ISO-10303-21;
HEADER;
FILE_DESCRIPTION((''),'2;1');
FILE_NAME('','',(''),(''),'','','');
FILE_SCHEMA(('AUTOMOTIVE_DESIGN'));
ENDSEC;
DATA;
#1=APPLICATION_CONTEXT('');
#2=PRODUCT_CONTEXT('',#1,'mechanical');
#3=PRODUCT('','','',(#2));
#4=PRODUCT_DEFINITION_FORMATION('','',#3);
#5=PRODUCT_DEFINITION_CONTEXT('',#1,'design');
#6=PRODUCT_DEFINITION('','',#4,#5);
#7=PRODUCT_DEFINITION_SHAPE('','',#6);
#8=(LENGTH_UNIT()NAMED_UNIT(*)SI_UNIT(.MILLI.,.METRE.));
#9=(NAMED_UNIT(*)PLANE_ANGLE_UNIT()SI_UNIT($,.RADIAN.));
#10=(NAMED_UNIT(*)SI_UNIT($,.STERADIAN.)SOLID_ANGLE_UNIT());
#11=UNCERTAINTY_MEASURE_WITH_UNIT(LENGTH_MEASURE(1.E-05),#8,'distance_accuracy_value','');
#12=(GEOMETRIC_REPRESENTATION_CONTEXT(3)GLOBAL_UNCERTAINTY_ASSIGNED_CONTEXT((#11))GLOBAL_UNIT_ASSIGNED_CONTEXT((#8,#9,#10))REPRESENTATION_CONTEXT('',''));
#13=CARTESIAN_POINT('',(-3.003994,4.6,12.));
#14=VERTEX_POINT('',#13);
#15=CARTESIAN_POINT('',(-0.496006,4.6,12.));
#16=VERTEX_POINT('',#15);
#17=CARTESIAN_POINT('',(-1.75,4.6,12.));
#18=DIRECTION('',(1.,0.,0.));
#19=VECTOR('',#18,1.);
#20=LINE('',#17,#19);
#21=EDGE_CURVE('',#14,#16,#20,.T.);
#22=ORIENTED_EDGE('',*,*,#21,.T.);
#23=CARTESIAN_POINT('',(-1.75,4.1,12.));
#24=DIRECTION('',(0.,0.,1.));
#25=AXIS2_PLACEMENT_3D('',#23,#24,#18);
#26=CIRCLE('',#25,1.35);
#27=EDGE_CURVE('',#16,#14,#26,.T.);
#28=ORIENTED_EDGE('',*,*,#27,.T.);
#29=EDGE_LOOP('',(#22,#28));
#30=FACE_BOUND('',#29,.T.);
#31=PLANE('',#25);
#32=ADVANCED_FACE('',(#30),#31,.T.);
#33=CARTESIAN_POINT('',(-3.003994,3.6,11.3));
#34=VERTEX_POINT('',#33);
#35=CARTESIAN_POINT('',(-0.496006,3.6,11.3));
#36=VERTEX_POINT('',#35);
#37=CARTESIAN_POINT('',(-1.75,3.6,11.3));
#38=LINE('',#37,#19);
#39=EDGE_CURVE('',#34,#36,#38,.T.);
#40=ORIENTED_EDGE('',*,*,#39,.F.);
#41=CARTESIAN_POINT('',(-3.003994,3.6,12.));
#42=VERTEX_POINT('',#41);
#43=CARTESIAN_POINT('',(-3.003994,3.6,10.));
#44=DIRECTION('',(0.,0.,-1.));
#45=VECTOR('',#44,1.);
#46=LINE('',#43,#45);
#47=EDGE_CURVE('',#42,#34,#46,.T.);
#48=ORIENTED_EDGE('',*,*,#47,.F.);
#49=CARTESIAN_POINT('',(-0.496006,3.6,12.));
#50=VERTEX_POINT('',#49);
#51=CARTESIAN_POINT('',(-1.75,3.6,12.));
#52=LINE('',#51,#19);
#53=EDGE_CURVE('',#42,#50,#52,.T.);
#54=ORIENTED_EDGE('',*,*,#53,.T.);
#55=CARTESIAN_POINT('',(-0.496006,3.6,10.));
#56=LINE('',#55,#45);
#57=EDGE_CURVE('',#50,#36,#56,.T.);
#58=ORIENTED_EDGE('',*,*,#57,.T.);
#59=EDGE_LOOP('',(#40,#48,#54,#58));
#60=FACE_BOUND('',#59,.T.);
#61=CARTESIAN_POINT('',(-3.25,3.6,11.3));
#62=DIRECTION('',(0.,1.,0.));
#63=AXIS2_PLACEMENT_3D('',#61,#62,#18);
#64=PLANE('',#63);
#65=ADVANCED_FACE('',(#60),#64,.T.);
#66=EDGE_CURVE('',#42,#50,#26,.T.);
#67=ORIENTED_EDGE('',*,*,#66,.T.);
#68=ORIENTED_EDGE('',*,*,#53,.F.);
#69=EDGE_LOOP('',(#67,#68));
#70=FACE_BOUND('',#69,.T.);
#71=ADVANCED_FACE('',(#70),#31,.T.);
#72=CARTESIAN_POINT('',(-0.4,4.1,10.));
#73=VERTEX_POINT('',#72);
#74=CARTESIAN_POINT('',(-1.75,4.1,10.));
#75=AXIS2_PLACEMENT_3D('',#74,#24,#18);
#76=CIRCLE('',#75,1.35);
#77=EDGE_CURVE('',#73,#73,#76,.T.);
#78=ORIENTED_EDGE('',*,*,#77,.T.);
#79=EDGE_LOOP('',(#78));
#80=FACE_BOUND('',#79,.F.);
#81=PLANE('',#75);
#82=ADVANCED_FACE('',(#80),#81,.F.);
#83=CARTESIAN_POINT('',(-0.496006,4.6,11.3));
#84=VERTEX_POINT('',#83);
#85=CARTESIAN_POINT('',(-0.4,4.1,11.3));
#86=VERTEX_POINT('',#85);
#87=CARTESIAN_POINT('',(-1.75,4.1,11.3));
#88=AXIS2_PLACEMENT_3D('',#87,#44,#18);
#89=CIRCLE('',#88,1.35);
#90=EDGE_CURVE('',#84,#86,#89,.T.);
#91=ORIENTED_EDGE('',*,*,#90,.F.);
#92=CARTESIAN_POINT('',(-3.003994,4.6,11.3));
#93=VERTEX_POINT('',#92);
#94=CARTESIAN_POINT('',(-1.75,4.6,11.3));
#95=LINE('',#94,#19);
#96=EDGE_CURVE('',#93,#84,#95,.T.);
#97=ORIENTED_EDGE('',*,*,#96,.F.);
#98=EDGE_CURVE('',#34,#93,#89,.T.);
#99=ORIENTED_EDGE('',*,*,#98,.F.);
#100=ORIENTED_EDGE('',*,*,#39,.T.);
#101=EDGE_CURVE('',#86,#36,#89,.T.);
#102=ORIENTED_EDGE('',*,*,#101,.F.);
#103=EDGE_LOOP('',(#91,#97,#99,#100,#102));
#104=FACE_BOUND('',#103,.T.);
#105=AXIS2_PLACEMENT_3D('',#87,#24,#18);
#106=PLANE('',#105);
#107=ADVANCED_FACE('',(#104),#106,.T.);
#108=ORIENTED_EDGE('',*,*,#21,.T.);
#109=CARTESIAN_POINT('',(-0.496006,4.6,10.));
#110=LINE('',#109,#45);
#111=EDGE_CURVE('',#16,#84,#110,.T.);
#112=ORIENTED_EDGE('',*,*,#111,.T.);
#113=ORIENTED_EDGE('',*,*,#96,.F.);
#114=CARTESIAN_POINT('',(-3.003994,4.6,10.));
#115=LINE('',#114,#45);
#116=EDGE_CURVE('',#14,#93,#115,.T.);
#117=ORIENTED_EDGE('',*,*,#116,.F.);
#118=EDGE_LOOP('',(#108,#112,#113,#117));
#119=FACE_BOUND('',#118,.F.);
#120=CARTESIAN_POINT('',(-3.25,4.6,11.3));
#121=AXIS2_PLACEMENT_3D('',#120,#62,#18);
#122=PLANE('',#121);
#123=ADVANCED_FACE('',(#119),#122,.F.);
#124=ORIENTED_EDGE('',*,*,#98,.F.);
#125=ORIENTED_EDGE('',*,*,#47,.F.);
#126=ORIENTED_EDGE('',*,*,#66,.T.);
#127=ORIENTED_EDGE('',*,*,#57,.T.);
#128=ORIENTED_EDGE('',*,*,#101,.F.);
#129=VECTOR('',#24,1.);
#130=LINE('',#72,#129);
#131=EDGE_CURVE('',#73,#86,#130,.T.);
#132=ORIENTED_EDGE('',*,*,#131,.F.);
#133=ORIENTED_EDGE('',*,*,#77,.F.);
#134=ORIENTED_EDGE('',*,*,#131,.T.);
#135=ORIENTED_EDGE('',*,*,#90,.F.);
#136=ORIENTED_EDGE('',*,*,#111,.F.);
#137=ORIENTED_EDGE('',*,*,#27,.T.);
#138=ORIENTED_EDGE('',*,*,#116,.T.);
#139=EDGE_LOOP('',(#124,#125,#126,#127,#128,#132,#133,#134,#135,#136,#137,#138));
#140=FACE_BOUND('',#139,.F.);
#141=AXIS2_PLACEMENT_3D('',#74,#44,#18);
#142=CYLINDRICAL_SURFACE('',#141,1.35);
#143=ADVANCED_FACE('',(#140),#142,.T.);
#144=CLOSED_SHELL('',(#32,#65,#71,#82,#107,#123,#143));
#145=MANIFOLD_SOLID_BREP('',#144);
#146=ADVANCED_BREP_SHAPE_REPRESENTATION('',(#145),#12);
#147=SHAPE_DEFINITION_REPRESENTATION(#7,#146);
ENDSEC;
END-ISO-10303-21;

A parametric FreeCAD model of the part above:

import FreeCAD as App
import Part
import Sketcher
from FreeCAD import Vector
Q = App.Units.Quantity

doc = App.newDocument("Part")
body = doc.addObject("PartDesign::Body", "Body")

sketch1 = body.newObject("Sketcher::SketchObject", "Sketch")
sketch1.AttachmentSupport = (doc.getObject("XY_Plane"), [""])
sketch1.MapMode = "FlatFace"
sketch1.AttachmentOffset = App.Placement(Vector(0, 0, 1.3), App.Rotation())
sketch1.addGeometry([
    Part.LineSegment(Vector(-1.5, 0.5, 0), Vector(-1.5, -0.5, 0)),
    Part.LineSegment(Vector(-1.5, -0.5, 0), Vector(1.5, -0.5, 0)),
    Part.LineSegment(Vector(1.5, -0.5, 0), Vector(1.5, 0.5, 0)),
    Part.LineSegment(Vector(1.5, 0.5, 0), Vector(-1.5, 0.5, 0)),
], False)
sketch1.addConstraint([
    Sketcher.Constraint("Coincident", 0, 2, 1, 1),
    Sketcher.Constraint("Coincident", 1, 2, 2, 1),
    Sketcher.Constraint("Coincident", 2, 2, 3, 1),
    Sketcher.Constraint("Coincident", 3, 2, 0, 1),
    Sketcher.Constraint("Vertical", 0),
    Sketcher.Constraint("Horizontal", 1),
    Sketcher.Constraint("Vertical", 2),
    Sketcher.Constraint("Horizontal", 3),
    Sketcher.Constraint("Symmetric", 0, 2, 2, 2, -1, 1),
    Sketcher.Constraint("DistanceX", 1, 1, 1, 2, Q("3 mm")),
    Sketcher.Constraint("DistanceY", 0, 2, 0, 1, Q("1 mm")),
])
pad1 = body.newObject("PartDesign::Pad", "Pad")
pad1.Profile = sketch1
pad1.Length = 0.7
body2 = doc.addObject("PartDesign::Body", "Body001")

sketch2 = body2.newObject("Sketcher::SketchObject", "Sketch001")
sketch2.AttachmentSupport = (doc.getObject("XY_Plane001"), [""])
sketch2.MapMode = "FlatFace"
sketch2.addGeometry(Part.Circle(Vector(0, 0, 0), Vector(0, 0, 1), 1.4), False)
sketch2.addConstraint([
    Sketcher.Constraint("Coincident", 0, 3, -1, 1),
    Sketcher.Constraint("Diameter", 0, Q("2.7 mm")),
])
pad2 = body2.newObject("PartDesign::Pad", "Pad001")
pad2.Profile = sketch2
pad2.Length = 2
doc.recompute()

boolean = body2.newObject("PartDesign::Boolean", "Boolean")
boolean.Type = "Cut"
boolean.addObjects([body])
body3 = doc.addObject("PartDesign::Body", "Body002")
doc.recompute()

body2.Placement = App.Placement(Vector(-1.75, 4.1, 10), App.Rotation(Vector(0, 0, 1), 0))
boolean2 = body3.newObject("PartDesign::Boolean", "Boolean001")
boolean2.Type = "Fuse"
boolean2.addObjects([body2])

doc.recompute()
